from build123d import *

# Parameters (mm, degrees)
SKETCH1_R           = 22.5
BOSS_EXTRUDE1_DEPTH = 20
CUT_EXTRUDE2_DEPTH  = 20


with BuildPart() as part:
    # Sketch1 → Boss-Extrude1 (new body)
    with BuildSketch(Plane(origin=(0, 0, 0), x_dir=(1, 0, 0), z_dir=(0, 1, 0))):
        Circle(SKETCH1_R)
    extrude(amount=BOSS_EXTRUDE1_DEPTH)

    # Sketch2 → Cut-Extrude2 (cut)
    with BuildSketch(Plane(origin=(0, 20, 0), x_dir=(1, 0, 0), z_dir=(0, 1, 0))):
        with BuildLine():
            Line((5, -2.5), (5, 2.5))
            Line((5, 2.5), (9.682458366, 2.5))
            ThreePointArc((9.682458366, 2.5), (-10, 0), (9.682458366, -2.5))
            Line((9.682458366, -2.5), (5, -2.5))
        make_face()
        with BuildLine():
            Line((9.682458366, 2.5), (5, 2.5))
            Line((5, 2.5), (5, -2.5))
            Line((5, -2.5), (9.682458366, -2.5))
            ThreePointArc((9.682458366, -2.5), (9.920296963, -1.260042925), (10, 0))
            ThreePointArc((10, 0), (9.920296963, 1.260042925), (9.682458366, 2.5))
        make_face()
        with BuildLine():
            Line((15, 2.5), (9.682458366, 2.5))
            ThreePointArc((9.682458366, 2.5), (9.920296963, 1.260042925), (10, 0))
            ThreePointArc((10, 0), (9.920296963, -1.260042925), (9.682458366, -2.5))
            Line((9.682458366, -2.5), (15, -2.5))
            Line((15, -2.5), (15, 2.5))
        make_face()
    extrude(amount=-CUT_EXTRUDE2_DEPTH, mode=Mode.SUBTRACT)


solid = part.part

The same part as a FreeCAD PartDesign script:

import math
import FreeCAD as App
import Part
import Sketcher

V = App.Vector

doc = App.newDocument("Part")
params = doc.addObject("Spreadsheet::Sheet", "Params")
for row, (alias, value) in enumerate([
    ("sketch1_diameter", "45 mm"),
    ("pad1_length", "20 mm"),
    ("sketch2_radius", "10 mm"),
    ("sketch2_height", "5 mm"),
    ("pocket1_length", "20 mm"),
], start=1):
    params.set(f"A{row}", alias)
    params.set(f"B{row}", "=" + value)
    params.setAlias(f"B{row}", alias)

body = doc.addObject("PartDesign::Body", "Body")

sketch1 = doc.addObject("Sketcher::SketchObject", "Sketch")
body.addObject(sketch1)
sketch1.AttachmentSupport = (doc.XZ_Plane, [""])
sketch1.MapMode = "FlatFace"
sketch1.addGeometry(Part.Circle(V(0, 0, 0), V(0, 0, 1), 22.5), False)
sketch1.addConstraint([
    Sketcher.Constraint("Coincident", 0, 3, -1, 1),
    Sketcher.Constraint("Diameter", 0, 45.0),
])
sketch1.setExpression("Constraints[1]", "Params.sketch1_diameter")
pad1 = doc.addObject("PartDesign::Pad", "Pad")
body.addObject(pad1)
pad1.Profile = sketch1
pad1.setExpression("Length", "Params.pad1_length")
pad1.Reversed = True

sketch2 = doc.addObject("Sketcher::SketchObject", "Sketch001")
body.addObject(sketch2)
sketch2.AttachmentSupport = (doc.XZ_Plane, [""])
sketch2.MapMode = "FlatFace"
sketch2.AttachmentOffset = App.Placement(V(0, 0, -20), App.Rotation())
sketch2.addGeometry([
    Part.ArcOfCircle(Part.Circle(V(0, 0, 0), V(0, 0, 1), 10), math.radians(14.477512), math.radians(345.522488)),
    Part.LineSegment(V(9.682458, 2.5, 0), V(15, 2.5, 0)),
    Part.LineSegment(V(15, 2.5, 0), V(15, -2.5, 0)),
    Part.LineSegment(V(15, -2.5, 0), V(9.682458, -2.5, 0)),
], False)
sketch2.addConstraint([
    Sketcher.Constraint("Coincident", 0, 1, 1, 1),
    Sketcher.Constraint("Coincident", 1, 2, 2, 1),
    Sketcher.Constraint("Coincident", 2, 2, 3, 1),
    Sketcher.Constraint("Coincident", 3, 2, 0, 2),
    Sketcher.Constraint("Horizontal", 1),
    Sketcher.Constraint("Vertical", 2),
    Sketcher.Constraint("Horizontal", 3),
    Sketcher.Constraint("Coincident", 0, 3, -1, 1),
    Sketcher.Constraint("Vertical", 0, 1, 3, 2),
    Sketcher.Constraint("Radius", 0, 10.0),
    Sketcher.Constraint("DistanceY", 2, 2, 2, 1, 5.0),
    Sketcher.Constraint("DistanceX", -1, 1, 1, 2, 15.0),
])
sketch2.setExpression("Constraints[9]", "Params.sketch2_radius")
sketch2.setExpression("Constraints[10]", "Params.sketch2_height")
pocket1 = doc.addObject("PartDesign::Pocket", "Pocket")
body.addObject(pocket1)
pocket1.Profile = sketch2
pocket1.setExpression("Length", "Params.pocket1_length")
pocket1.Reversed = True

doc.recompute()
